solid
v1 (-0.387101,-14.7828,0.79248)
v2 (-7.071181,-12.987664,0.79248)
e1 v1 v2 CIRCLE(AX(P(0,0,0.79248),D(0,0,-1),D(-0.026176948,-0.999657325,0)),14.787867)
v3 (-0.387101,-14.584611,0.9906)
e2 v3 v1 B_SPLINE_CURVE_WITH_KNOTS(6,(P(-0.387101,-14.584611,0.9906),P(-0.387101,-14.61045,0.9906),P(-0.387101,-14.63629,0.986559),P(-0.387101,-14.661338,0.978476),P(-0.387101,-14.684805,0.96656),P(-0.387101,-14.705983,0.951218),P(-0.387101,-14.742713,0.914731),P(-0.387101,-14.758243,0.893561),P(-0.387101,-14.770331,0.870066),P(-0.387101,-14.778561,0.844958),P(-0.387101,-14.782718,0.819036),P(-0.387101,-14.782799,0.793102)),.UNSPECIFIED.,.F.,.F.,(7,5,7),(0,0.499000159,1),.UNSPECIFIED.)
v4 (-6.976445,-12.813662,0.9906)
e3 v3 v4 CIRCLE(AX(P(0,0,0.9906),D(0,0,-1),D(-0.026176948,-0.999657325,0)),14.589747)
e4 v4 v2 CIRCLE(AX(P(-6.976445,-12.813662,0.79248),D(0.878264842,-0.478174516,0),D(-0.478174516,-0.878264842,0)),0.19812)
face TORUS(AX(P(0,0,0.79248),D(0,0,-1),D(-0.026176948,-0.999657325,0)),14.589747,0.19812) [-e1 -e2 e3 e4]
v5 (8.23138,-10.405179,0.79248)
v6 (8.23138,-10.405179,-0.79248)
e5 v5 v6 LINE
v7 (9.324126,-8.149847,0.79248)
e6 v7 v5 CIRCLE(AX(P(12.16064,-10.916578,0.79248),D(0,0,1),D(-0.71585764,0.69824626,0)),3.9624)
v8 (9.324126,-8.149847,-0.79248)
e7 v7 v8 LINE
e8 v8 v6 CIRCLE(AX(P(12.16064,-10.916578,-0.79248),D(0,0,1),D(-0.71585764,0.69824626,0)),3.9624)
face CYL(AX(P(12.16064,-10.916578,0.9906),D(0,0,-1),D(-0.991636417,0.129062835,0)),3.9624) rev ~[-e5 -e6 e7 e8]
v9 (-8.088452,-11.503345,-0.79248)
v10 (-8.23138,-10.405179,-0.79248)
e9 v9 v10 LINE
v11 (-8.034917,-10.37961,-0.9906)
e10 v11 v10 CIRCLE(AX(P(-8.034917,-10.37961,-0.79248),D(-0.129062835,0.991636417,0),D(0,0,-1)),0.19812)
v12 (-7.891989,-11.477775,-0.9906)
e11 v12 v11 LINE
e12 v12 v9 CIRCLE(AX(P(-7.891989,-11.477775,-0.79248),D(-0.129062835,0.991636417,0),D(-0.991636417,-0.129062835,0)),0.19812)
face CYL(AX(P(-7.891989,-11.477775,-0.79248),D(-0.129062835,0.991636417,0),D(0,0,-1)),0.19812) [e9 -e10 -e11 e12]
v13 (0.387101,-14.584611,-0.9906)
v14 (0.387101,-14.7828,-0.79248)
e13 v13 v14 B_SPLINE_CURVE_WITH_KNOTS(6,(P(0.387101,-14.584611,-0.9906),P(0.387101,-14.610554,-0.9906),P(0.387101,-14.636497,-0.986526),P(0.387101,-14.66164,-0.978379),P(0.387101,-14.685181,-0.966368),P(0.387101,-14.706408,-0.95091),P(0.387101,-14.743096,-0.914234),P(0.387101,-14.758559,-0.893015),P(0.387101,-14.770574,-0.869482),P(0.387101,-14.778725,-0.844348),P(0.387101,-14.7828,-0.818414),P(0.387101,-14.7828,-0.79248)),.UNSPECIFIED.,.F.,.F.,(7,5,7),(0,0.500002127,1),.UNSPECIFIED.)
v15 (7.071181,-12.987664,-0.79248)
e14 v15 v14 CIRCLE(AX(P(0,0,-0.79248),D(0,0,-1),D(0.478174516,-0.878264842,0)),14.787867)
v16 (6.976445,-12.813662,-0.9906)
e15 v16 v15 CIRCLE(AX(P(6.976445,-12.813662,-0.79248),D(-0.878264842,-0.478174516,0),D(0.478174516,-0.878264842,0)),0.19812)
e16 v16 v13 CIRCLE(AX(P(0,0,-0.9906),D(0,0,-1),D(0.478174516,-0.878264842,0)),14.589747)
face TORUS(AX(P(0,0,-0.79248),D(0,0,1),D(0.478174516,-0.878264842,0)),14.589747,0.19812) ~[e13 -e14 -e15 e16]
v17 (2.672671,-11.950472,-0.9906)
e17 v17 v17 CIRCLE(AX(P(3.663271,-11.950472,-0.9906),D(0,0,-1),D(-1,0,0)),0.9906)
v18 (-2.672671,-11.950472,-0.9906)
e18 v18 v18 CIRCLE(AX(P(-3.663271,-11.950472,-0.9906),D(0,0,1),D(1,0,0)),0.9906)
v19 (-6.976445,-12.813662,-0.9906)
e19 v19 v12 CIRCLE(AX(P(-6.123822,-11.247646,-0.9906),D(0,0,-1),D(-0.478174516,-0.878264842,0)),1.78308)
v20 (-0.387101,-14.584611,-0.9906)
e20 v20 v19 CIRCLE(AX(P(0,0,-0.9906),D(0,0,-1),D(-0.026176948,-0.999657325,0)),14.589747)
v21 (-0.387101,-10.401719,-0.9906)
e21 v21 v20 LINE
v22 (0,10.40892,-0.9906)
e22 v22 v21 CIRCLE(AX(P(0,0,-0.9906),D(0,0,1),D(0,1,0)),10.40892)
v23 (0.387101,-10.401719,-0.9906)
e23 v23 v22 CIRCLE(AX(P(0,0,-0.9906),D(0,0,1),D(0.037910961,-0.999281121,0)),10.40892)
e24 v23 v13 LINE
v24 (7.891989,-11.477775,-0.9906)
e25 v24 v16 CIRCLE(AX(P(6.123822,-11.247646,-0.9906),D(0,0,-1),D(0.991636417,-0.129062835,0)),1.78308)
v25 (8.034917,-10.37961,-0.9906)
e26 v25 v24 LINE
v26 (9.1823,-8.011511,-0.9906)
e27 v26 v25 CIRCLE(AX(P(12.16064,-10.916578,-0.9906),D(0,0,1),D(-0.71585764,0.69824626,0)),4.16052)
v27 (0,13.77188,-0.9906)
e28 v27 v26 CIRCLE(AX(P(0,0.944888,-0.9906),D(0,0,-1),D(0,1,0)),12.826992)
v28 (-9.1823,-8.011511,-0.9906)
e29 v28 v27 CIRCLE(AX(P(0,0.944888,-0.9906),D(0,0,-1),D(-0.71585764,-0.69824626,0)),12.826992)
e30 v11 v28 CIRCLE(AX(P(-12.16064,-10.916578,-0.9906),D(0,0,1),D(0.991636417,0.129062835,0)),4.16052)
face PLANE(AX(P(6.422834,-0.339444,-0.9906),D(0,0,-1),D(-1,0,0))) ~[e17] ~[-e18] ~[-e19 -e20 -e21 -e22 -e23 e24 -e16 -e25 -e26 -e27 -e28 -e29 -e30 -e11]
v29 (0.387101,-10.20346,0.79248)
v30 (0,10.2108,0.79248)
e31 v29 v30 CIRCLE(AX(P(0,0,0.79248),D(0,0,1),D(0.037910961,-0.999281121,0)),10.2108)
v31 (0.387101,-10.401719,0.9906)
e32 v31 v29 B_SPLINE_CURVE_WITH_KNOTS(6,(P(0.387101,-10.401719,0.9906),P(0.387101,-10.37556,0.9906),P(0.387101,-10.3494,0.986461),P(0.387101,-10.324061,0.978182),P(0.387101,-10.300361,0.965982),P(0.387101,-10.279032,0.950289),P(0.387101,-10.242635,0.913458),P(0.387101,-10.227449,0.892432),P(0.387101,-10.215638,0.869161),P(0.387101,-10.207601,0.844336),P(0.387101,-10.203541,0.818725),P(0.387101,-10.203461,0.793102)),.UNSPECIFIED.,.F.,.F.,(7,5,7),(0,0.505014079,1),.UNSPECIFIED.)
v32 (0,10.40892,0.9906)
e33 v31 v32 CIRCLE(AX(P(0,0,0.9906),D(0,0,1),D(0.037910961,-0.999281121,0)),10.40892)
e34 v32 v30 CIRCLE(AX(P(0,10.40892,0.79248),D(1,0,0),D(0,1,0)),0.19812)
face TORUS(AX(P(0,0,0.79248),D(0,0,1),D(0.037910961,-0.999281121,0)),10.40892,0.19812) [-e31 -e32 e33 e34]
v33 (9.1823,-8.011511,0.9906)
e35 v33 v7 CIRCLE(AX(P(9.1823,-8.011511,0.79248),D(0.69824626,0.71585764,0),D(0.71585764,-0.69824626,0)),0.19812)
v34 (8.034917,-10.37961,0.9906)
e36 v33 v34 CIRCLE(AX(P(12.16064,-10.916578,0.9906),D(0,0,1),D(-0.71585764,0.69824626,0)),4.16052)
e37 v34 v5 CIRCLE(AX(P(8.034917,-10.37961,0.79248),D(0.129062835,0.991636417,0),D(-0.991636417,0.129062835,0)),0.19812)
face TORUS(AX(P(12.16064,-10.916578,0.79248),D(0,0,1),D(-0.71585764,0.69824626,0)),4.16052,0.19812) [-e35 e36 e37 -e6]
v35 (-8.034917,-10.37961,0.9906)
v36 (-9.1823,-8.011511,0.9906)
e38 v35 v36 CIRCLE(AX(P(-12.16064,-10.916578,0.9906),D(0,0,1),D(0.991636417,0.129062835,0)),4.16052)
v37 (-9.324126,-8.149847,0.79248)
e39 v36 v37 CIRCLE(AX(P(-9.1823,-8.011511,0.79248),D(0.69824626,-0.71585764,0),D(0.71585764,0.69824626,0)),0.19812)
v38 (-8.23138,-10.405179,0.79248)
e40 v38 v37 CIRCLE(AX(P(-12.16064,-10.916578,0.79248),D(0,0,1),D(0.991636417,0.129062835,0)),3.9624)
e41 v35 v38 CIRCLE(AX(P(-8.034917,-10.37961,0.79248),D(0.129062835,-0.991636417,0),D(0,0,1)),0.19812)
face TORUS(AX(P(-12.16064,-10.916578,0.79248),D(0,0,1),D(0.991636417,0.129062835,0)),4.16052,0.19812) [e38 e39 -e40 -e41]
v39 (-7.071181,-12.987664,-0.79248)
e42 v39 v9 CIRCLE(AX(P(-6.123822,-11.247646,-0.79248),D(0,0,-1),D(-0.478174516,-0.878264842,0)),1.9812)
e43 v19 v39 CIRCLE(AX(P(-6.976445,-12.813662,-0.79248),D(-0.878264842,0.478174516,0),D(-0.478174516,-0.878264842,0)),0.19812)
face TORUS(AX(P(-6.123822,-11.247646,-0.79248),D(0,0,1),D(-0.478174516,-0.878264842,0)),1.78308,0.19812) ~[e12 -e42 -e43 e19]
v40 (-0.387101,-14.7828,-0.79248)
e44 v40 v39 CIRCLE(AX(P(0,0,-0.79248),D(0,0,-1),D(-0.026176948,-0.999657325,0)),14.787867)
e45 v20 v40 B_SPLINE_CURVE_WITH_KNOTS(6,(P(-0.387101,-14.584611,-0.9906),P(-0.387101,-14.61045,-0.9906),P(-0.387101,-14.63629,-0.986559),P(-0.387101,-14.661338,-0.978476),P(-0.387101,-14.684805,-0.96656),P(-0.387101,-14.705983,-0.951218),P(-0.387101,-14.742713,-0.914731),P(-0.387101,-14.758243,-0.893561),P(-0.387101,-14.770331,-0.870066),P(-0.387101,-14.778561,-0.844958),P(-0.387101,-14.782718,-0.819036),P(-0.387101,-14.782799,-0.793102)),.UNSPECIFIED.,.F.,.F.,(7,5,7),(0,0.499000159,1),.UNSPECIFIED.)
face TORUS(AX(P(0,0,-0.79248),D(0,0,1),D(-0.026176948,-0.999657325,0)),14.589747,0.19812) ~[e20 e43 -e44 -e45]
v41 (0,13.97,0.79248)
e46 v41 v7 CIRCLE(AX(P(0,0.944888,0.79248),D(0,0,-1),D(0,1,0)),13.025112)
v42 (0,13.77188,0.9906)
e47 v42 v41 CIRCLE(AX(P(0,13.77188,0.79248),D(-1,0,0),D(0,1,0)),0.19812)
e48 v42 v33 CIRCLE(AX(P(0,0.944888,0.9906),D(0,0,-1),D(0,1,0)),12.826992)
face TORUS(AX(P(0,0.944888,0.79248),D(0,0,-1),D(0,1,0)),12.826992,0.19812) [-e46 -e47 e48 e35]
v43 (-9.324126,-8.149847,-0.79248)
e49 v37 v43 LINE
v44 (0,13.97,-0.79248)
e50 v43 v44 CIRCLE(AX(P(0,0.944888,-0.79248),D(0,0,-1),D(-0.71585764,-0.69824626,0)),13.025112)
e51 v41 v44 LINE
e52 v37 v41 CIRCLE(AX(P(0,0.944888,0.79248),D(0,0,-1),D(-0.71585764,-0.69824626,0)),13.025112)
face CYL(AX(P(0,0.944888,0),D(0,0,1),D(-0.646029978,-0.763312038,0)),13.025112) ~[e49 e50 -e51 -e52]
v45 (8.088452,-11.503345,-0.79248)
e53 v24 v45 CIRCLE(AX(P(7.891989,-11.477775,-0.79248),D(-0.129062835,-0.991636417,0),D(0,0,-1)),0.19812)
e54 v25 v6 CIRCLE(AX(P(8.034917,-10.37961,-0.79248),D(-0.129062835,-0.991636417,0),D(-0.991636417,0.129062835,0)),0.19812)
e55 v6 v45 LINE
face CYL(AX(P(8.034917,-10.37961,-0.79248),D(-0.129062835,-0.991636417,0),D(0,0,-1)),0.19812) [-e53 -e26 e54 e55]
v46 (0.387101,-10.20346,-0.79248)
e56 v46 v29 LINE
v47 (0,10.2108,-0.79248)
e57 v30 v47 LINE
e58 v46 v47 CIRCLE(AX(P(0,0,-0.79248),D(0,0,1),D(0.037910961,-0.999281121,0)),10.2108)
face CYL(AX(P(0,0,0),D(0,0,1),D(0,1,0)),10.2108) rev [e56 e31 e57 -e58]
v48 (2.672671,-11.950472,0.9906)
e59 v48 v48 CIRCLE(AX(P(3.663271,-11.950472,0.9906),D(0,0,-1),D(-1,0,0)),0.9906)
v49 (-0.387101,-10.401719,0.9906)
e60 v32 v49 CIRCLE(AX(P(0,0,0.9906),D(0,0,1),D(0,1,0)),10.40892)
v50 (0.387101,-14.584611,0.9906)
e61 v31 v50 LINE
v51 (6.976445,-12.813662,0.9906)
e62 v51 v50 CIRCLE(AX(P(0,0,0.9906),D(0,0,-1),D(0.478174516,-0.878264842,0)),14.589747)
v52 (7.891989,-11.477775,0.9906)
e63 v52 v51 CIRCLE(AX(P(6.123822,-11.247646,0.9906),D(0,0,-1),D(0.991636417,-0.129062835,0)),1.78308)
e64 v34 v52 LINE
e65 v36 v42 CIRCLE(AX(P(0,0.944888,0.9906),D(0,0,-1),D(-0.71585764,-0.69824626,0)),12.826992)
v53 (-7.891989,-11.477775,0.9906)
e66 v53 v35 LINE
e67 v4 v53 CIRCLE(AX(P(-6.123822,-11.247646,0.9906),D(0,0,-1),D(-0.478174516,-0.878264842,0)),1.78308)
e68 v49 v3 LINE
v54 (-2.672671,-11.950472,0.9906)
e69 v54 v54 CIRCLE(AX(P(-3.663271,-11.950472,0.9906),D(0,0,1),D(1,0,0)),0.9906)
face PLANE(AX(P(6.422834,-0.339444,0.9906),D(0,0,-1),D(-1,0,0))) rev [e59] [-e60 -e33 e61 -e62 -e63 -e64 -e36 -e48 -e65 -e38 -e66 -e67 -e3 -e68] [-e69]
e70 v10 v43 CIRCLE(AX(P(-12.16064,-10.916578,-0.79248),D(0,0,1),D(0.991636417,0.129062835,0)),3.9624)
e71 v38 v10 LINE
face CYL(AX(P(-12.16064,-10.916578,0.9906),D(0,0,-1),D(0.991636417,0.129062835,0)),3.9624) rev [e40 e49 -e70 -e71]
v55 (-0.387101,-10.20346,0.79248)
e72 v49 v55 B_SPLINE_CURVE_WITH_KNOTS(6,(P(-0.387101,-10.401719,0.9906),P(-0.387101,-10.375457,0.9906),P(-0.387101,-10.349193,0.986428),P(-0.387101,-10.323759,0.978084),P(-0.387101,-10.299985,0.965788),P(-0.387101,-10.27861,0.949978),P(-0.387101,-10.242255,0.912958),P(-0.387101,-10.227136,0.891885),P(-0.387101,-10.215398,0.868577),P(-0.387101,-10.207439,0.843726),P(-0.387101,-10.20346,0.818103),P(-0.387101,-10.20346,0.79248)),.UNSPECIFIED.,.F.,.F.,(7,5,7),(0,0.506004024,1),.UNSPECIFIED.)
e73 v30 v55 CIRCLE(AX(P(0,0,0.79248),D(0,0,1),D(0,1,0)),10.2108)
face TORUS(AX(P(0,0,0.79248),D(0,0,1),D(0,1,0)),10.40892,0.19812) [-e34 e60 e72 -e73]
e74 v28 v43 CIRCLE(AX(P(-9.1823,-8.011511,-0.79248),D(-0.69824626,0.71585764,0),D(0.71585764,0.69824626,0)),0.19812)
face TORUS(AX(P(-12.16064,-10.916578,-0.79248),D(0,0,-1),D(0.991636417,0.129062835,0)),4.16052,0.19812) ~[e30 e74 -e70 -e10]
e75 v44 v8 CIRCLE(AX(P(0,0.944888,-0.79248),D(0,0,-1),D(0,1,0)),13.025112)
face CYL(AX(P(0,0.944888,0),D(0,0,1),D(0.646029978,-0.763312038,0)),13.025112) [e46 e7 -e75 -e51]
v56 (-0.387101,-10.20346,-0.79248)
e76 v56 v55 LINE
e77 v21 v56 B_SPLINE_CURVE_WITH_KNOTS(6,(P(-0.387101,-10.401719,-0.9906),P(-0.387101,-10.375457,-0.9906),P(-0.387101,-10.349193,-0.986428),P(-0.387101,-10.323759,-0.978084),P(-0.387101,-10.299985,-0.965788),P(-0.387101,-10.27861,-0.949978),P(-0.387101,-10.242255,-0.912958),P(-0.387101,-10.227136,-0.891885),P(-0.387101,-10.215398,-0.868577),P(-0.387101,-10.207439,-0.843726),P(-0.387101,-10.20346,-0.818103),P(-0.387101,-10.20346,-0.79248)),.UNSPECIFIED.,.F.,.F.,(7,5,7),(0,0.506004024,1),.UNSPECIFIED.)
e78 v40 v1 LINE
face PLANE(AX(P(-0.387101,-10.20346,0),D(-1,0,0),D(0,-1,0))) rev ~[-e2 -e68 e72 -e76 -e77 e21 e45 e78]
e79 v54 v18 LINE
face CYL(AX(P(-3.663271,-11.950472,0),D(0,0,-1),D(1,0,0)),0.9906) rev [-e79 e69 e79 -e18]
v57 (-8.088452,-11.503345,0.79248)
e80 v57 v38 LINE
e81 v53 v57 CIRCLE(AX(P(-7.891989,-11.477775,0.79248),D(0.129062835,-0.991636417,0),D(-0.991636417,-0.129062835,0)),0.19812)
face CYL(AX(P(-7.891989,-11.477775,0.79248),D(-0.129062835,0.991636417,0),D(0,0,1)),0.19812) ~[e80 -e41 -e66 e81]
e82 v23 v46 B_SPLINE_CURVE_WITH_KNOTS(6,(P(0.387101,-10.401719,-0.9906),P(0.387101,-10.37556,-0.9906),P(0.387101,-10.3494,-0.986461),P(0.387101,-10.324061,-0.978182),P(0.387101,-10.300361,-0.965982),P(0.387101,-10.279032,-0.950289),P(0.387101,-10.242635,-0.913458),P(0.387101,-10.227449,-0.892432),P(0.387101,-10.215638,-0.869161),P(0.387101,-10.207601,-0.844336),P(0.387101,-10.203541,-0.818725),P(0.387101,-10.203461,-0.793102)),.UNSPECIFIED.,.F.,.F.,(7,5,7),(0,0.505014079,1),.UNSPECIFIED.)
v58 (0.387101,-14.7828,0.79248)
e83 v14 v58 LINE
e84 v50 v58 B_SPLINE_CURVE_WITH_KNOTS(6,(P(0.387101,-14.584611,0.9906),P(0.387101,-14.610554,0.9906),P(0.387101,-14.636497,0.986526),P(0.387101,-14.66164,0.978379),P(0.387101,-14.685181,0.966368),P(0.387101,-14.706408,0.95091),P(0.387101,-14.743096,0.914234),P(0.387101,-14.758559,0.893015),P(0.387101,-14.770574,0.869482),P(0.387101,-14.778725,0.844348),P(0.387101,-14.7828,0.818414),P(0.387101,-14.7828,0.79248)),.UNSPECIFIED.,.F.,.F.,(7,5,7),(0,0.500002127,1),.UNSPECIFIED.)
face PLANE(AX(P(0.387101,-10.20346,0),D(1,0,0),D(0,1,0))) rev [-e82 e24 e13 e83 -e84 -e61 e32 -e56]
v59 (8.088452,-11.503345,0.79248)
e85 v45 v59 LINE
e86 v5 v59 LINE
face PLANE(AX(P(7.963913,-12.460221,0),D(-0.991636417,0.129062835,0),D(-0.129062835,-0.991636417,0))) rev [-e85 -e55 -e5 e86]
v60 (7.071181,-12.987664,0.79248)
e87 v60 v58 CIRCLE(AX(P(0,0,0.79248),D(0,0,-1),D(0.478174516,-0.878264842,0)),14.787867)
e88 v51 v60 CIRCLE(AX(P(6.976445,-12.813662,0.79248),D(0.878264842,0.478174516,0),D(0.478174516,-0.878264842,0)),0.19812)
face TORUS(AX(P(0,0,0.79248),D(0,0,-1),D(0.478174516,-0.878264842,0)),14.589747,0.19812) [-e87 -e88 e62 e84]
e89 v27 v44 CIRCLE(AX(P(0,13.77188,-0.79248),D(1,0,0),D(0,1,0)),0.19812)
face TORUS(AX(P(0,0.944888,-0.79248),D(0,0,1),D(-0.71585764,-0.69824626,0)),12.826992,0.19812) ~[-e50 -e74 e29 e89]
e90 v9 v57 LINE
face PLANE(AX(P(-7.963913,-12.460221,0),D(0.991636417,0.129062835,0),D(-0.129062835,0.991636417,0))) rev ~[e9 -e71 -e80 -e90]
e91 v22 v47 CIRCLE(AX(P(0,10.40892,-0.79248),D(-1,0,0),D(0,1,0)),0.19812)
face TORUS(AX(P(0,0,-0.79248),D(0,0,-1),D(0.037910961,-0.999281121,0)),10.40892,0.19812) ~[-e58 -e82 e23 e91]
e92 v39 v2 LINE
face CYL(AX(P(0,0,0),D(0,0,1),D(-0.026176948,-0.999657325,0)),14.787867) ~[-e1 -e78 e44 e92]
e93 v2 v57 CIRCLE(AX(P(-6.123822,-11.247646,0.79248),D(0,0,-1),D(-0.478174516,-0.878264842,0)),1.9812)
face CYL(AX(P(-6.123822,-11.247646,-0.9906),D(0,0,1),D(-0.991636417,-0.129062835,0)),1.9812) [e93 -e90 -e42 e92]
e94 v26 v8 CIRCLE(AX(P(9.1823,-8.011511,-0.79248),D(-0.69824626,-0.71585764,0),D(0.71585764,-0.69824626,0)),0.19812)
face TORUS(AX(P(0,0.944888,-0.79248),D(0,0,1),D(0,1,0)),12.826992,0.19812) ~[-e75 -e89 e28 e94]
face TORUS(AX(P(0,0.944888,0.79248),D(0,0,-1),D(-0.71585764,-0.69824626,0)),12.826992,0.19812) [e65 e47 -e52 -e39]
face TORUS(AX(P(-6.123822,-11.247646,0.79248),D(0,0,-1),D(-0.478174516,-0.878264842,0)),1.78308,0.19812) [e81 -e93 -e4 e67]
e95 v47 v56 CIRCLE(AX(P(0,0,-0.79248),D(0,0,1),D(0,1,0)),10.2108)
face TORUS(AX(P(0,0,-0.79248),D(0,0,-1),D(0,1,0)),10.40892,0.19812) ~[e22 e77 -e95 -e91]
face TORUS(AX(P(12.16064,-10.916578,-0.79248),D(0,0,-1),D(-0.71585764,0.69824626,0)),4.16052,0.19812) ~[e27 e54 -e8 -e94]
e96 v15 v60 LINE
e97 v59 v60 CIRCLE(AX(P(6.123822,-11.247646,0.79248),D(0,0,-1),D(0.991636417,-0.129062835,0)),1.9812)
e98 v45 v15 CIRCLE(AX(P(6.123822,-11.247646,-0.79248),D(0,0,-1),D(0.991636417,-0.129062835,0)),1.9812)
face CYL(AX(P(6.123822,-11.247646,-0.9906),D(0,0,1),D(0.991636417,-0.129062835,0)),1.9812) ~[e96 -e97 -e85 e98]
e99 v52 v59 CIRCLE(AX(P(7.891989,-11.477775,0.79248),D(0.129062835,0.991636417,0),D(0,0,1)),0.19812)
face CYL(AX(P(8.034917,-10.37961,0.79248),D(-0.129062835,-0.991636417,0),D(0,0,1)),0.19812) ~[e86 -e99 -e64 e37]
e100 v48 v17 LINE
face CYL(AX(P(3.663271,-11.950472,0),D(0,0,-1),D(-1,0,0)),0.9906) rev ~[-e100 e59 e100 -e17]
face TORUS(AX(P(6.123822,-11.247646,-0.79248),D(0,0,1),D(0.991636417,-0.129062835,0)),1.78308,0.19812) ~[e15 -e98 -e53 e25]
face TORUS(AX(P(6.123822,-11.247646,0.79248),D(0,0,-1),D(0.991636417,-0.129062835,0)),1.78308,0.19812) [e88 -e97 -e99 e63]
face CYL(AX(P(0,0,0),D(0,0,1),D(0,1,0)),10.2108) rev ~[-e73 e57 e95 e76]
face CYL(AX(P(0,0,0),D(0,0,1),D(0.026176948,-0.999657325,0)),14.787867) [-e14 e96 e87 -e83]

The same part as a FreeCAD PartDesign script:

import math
import FreeCAD as App
import Part
import Sketcher
Q = App.Units.Quantity


def edges_at(feature, points):
    """Names of the edges that pass closest to the given points."""
    edges = feature.Shape.Edges
    near = lambda p: min(range(len(edges)), key=lambda i: edges[i].distToShape(Part.Vertex(*p))[0])
    return sorted({f"Edge{near(p) + 1}" for p in points})

doc = App.newDocument("Part")
body = doc.addObject("PartDesign::Body", "Body")

sketch1 = body.newObject("Sketcher::SketchObject", "Sketch")
sketch1.AttachmentSupport = (doc.getObject("XY_Plane"), [""])
sketch1.MapMode = "FlatFace"
sketch1.addGeometry([
    Part.LineSegment(App.Vector(-8.4, -9, 0), App.Vector(-8, -12.5, 0)),
    Part.ArcOfCircle(Part.Circle(App.Vector(0, 0, 0), App.Vector(0, 0, 1), 14.8), math.radians(-123), math.radians(-91)),
    Part.LineSegment(App.Vector(-0.4, -14.8, 0), App.Vector(-0.4, -10.2, 0)),
    Part.ArcOfCircle(Part.Circle(App.Vector(0, 0, 0), App.Vector(0, 0, 1), 10.2), math.radians(90), math.radians(268)),
    Part.LineSegment(App.Vector(0, 10.2, 0), App.Vector(0, 14, 0)),
    Part.ArcOfCircle(Part.Circle(App.Vector(0, 0.9, 0), App.Vector(0, 0, 1), 13), math.radians(90), math.radians(230)),
    Part.Circle(App.Vector(-3.7, -12, 0), App.Vector(0, 0, 1), 1),
], False)
sketch1.addConstraint([
    Sketcher.Constraint("Coincident", 0, 2, 1, 1),
    Sketcher.Constraint("Coincident", 1, 2, 2, 1),
    Sketcher.Constraint("Coincident", 2, 2, 3, 2),
    Sketcher.Constraint("Coincident", 3, 1, 4, 1),
    Sketcher.Constraint("Coincident", 4, 2, 5, 1),
    Sketcher.Constraint("Coincident", 5, 2, 0, 1),
    Sketcher.Constraint("Vertical", 2),
    Sketcher.Constraint("Vertical", 4),
    Sketcher.Constraint("Coincident", 1, 3, -1, 1),
    Sketcher.Constraint("Coincident", 3, 3, -1, 1),
    Sketcher.Constraint("PointOnObject", 5, 3, -2),
    Sketcher.Constraint("PointOnObject", 3, 1, -2),
    Sketcher.Constraint("Diameter", 6, Q("0.078 in")),
    Sketcher.Constraint("Radius", 3, Q("0.402 in")),
    Sketcher.Constraint("DistanceY", 4, 1, 4, 2, Q("0.148 in")),
    Sketcher.Constraint("DistanceY", 1, 2, -1, 1, Q("0.582 in")),
    Sketcher.Constraint("Radius", 5, Q("13.025112 mm")),
    Sketcher.Constraint("Radius", 1, Q("14.787867 mm")),
    Sketcher.Constraint("DistanceX", 5, 2, 0, 2, Q("0.450699 mm")),
    Sketcher.Constraint("Distance", 0, Q("3.492091 mm")),
    Sketcher.Constraint("DistanceX", 6, 3, -1, 1, Q("3.663271 mm")),
    Sketcher.Constraint("DistanceY", 6, 3, 5, 3, Q("12.895361 mm")),
])
pad1 = body.newObject("PartDesign::Pad", "Pad")
pad1.Profile = sketch1
pad1.Length = Q("0.078 in")
pad1.Midplane = True
doc.recompute()

fillet = body.newObject("PartDesign::Fillet", "Fillet")
fillet.Base = (pad1, edges_at(pad1, [(-8.415, -8.997, 0)]))
fillet.Radius = Q("0.156 in")
doc.recompute()

fillet2 = body.newObject("PartDesign::Fillet", "Fillet001")
fillet2.Base = (fillet, edges_at(fillet, [(-7.964, -12.46, 0)]))
fillet2.Radius = Q("0.078 in")
body2 = doc.addObject("PartDesign::Body", "Body001")
doc.recompute()

body2.BaseFeature = body
doc.recompute()

mirroring = doc.addObject("Part::Mirroring", "Mirroring")
mirroring.Source = body
mirroring.Base = App.Vector(0, 13.97, 0.9906)
mirroring.Normal = App.Vector(-1, 0, 0)
body3 = doc.addObject("PartDesign::Body", "Body002")
body3.BaseFeature = mirroring
boolean = body2.newObject("PartDesign::Boolean", "Boolean")
boolean.Type = "Fuse"
boolean.addObjects([body3])
doc.recompute()

fillet3 = body2.newObject("PartDesign::Fillet", "Fillet002")
fillet3.Base = (boolean, edges_at(boolean, [
    (-10.209, 0.194, 0.991),
    (-8.16, -10.954, -0.991),
    (-8.16, -10.954, 0.991),
    (-8.595, -9.189, -0.991),
    (-8.595, -9.189, 0.991),
    (-3.836, -14.282, -0.991),
    (-3.836, -14.282, 0.991),
    (-7.758, -12.368, -0.991),
    (-7.758, -12.368, 0.991),
    (-12.002, 6.004, 0.991),
    (3.836, -14.282, -0.991),
    (8.16, -10.954, -0.991),
    (8.16, -10.954, 0.991),
    (3.836, -14.282, 0.991),
    (8.595, -9.189, 0.991),
    (8.595, -9.189, -0.991),
    (7.758, -12.368, 0.991),
    (7.758, -12.368, -0.991),
    (-10.209, 0.194, -0.991),
    (-12.002, 6.004, -0.991),
]))
fillet3.Radius = Q("0.0078 in")
mirroring.Visibility = False

doc.recompute()
